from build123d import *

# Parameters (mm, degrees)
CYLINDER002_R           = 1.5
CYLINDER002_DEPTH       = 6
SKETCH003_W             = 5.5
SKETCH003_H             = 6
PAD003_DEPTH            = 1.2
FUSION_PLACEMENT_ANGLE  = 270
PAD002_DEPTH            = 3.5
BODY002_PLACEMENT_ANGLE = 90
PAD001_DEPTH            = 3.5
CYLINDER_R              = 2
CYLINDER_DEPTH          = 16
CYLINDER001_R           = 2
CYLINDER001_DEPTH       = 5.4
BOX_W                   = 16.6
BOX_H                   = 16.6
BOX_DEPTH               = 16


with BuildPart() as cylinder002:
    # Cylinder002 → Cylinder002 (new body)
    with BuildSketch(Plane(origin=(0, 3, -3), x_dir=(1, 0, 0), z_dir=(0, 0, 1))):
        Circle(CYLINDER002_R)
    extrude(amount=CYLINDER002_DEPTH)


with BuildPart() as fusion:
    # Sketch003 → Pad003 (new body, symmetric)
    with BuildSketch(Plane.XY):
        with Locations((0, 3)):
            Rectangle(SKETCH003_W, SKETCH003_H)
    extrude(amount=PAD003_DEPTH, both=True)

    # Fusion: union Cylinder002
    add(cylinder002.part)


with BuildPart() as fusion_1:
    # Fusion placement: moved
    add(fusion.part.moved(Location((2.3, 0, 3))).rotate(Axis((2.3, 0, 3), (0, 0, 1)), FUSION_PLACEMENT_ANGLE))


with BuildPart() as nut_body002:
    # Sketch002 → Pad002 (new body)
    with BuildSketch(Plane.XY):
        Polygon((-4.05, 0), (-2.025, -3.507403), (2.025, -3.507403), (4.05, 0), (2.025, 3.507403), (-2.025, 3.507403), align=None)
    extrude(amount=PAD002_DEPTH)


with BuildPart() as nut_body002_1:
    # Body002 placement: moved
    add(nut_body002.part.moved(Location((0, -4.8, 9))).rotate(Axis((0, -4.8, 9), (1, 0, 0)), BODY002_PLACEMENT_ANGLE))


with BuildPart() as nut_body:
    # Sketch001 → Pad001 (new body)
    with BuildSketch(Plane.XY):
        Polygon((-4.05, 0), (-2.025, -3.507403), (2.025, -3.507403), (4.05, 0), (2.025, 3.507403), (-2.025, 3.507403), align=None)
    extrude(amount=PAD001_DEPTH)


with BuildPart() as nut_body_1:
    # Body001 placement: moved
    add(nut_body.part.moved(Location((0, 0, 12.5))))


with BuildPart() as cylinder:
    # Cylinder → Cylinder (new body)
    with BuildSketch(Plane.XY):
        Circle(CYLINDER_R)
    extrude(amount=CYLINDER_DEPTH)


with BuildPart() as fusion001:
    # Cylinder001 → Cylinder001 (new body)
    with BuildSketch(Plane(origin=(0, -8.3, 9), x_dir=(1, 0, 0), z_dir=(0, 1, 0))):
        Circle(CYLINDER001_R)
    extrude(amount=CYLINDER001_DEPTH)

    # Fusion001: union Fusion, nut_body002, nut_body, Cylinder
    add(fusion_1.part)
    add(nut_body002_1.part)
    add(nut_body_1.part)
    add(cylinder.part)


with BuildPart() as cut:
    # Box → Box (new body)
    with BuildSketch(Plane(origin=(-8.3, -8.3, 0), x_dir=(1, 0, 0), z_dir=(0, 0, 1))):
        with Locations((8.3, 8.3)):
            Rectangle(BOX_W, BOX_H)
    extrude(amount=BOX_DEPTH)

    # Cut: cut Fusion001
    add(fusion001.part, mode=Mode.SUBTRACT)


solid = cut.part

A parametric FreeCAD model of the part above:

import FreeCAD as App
import Part
import Sketcher
from FreeCAD import Vector
Q = App.Units.Quantity

doc = App.newDocument("Part")
body = doc.addObject("PartDesign::Body", "Body")

# Sketch on XY plane
sketch1 = body.newObject("Sketcher::SketchObject", "Sketch")
sketch1.AttachmentSupport = (doc.getObject("XY_Plane"), [""])
sketch1.MapMode = "FlatFace"
sketch1.AttachmentOffset = App.Placement(Vector(0, 0, -3), App.Rotation())
sketch1.addGeometry(Part.Circle(Vector(0, 3, 0), Vector(0, 0, 1), 1.5), False)
sketch1.addConstraint([
    Sketcher.Constraint("PointOnObject", 0, 3, -2),
    Sketcher.Constraint("Diameter", 0, 3.0),
    Sketcher.Constraint("DistanceY", -1, 1, 0, 3, 3.0),
])
pad1 = body.newObject("PartDesign::Pad", "Pad")
pad1.Profile = sketch1
pad1.Length = 6
body2 = doc.addObject("PartDesign::Body", "Body001")

# Sketch on XY plane
sketch2 = body2.newObject("Sketcher::SketchObject", "Sketch001")
sketch2.AttachmentSupport = (doc.getObject("XY_Plane001"), [""])
sketch2.MapMode = "FlatFace"
sketch2.addGeometry([
    Part.LineSegment(Vector(-3, 6, 0), Vector(-3, 0, 0)),
    Part.LineSegment(Vector(-3, 0, 0), Vector(3, 0, 0)),
    Part.LineSegment(Vector(3, 0, 0), Vector(3, 6, 0)),
    Part.LineSegment(Vector(3, 6, 0), Vector(-3, 6, 0)),
], False)
sketch2.addConstraint([
    Sketcher.Constraint("Coincident", 0, 2, 1, 1),
    Sketcher.Constraint("Coincident", 1, 2, 2, 1),
    Sketcher.Constraint("Coincident", 2, 2, 3, 1),
    Sketcher.Constraint("Coincident", 3, 2, 0, 1),
    Sketcher.Constraint("Vertical", 0),
    Sketcher.Constraint("Horizontal", 1),
    Sketcher.Constraint("Vertical", 2),
    Sketcher.Constraint("Horizontal", 3),
    Sketcher.Constraint("Symmetric", 0, 2, 1, 2, -1, 1),
    Sketcher.Constraint("DistanceY", 0, 2, 0, 1, 6.0),
    Sketcher.Constraint("DistanceX", 1, 1, 1, 2, 5.5),
])
pad2 = body2.newObject("PartDesign::Pad", "Pad001")
pad2.Profile = sketch2
pad2.Length = 2.4
pad2.Midplane = True
doc.recompute()

boolean = body2.newObject("PartDesign::Boolean", "Boolean")
boolean.Type = "Fuse"
boolean.addObjects([body])
body3 = doc.addObject("PartDesign::Body", "Body002")
doc.recompute()

body2.Placement = App.Placement(Vector(2.3, 0, 3), App.Rotation(Vector(0, 0, 1), 270))
boolean2 = body3.newObject("PartDesign::Boolean", "Boolean001")
boolean2.Type = "Fuse"
boolean2.addObjects([body2])
body4 = doc.addObject("PartDesign::Body", "Body003")

# Sketch on XY plane
sketch3 = body4.newObject("Sketcher::SketchObject", "Sketch002")
sketch3.AttachmentSupport = (doc.getObject("XY_Plane003"), [""])
sketch3.MapMode = "FlatFace"
sketch3.addGeometry([
    Part.LineSegment(Vector(-4, 0, 0), Vector(-2, -3.5, 0)),  # 0
    Part.LineSegment(Vector(-2, -3.5, 0), Vector(2, -3.5, 0)),  # 1
    Part.LineSegment(Vector(2, -3.5, 0), Vector(4, 0, 0)),  # 2
    Part.LineSegment(Vector(4, 0, 0), Vector(2, 3.5, 0)),  # 3
    Part.LineSegment(Vector(2, 3.5, 0), Vector(-2, 3.5, 0)),  # 4
    Part.LineSegment(Vector(-2, 3.5, 0), Vector(-4, 0, 0)),  # 5
], False)
sketch3.addConstraint([
    Sketcher.Constraint("Coincident", 0, 2, 1, 1),
    Sketcher.Constraint("Coincident", 1, 2, 2, 1),
    Sketcher.Constraint("Coincident", 2, 2, 3, 1),
    Sketcher.Constraint("Coincident", 3, 2, 4, 1),
    Sketcher.Constraint("Coincident", 4, 2, 5, 1),
    Sketcher.Constraint("Coincident", 5, 2, 0, 1),
    Sketcher.Constraint("Horizontal", 1),
    Sketcher.Constraint("Horizontal", 4),
    Sketcher.Constraint("Symmetric", 0, 2, 3, 2, -1, 1),
    Sketcher.Constraint("Symmetric", 2, 2, 5, 2, -1, 1),
    Sketcher.Constraint("PointOnObject", 2, 2, -1),
    Sketcher.Constraint("Parallel", 2, 5),
    Sketcher.Constraint("Vertical", 1, 2, 3, 2),
    Sketcher.Constraint("Angle", 0, Q("-60.000001 deg")),
    Sketcher.Constraint("DistanceX", 1, 1, 1, 2, 4.05),
    Sketcher.Constraint("DistanceX", 5, 2, 2, 2, 8.1),
])
pad3 = body4.newObject("PartDesign::Pad", "Pad002")
pad3.Profile = sketch3
pad3.Length = 3.5
body5 = doc.addObject("PartDesign::Body", "Body004")
doc.recompute()

body4.Placement = App.Placement(Vector(0, -4.8, 9), App.Rotation(Vector(1, 0, 0), 90))
boolean3 = body5.newObject("PartDesign::Boolean", "Boolean002")
boolean3.Type = "Fuse"
boolean3.addObjects([body4])
body6 = doc.addObject("PartDesign::Body", "Body005")

# Sketch on XY plane
sketch4 = body6.newObject("Sketcher::SketchObject", "Sketch003")
sketch4.AttachmentSupport = (doc.getObject("XY_Plane005"), [""])
sketch4.MapMode = "FlatFace"
sketch4.addGeometry([
    Part.LineSegment(Vector(-4, 0, 0), Vector(-2, -3.5, 0)),  # 0
    Part.LineSegment(Vector(-2, -3.5, 0), Vector(2, -3.5, 0)),  # 1
    Part.LineSegment(Vector(2, -3.5, 0), Vector(4, 0, 0)),  # 2
    Part.LineSegment(Vector(4, 0, 0), Vector(2, 3.5, 0)),  # 3
    Part.LineSegment(Vector(2, 3.5, 0), Vector(-2, 3.5, 0)),  # 4
    Part.LineSegment(Vector(-2, 3.5, 0), Vector(-4, 0, 0)),  # 5
], False)
sketch4.addConstraint([
    Sketcher.Constraint("Coincident", 0, 2, 1, 1),
    Sketcher.Constraint("Coincident", 1, 2, 2, 1),
    Sketcher.Constraint("Coincident", 2, 2, 3, 1),
    Sketcher.Constraint("Coincident", 3, 2, 4, 1),
    Sketcher.Constraint("Coincident", 4, 2, 5, 1),
    Sketcher.Constraint("Coincident", 5, 2, 0, 1),
    Sketcher.Constraint("Horizontal", 1),
    Sketcher.Constraint("Horizontal", 4),
    Sketcher.Constraint("Symmetric", 0, 2, 3, 2, -1, 1),
    Sketcher.Constraint("Symmetric", 2, 2, 5, 2, -1, 1),
    Sketcher.Constraint("PointOnObject", 2, 2, -1),
    Sketcher.Constraint("Parallel", 2, 5),
    Sketcher.Constraint("Vertical", 1, 2, 3, 2),
    Sketcher.Constraint("Angle", 0, Q("-60.000001 deg")),
    Sketcher.Constraint("DistanceX", 1, 1, 1, 2, 4.05),
    Sketcher.Constraint("DistanceX", 5, 2, 2, 2, 8.1),
])
pad4 = body6.newObject("PartDesign::Pad", "Pad003")
pad4.Profile = sketch4
pad4.Length = 3.5
body7 = doc.addObject("PartDesign::Body", "Body006")
doc.recompute()

body6.Placement = App.Placement(Vector(0, 0, 12.5), App.Rotation(Vector(0, 0, 1), 0))
boolean4 = body7.newObject("PartDesign::Boolean", "Boolean003")
boolean4.Type = "Fuse"
boolean4.addObjects([body6])
body8 = doc.addObject("PartDesign::Body", "Body007")

# Sketch on XY plane
sketch5 = body8.newObject("Sketcher::SketchObject", "Sketch004")
sketch5.AttachmentSupport = (doc.getObject("XY_Plane007"), [""])
sketch5.MapMode = "FlatFace"
sketch5.addGeometry(Part.Circle(Vector(0, 0, 0), Vector(0, 0, 1), 2), False)
sketch5.addConstraint([
    Sketcher.Constraint("Coincident", 0, 3, -1, 1),
    Sketcher.Constraint("Diameter", 0, 4.0),
])
pad5 = body8.newObject("PartDesign::Pad", "Pad004")
pad5.Profile = sketch5
pad5.Length = 16
body9 = doc.addObject("PartDesign::Body", "Body008")
body9.AllowCompound = True

# Sketch on XZ plane
sketch6 = body9.newObject("Sketcher::SketchObject", "Sketch005")
sketch6.AttachmentSupport = (doc.getObject("XZ_Plane008"), [""])
sketch6.MapMode = "FlatFace"
sketch6.AttachmentOffset = App.Placement(Vector(0, 0, 8.3), App.Rotation())
sketch6.addGeometry(Part.Circle(Vector(0, 9, 0), Vector(0, 0, 1), 2), False)
sketch6.addConstraint([
    Sketcher.Constraint("PointOnObject", 0, 3, -2),
    Sketcher.Constraint("Diameter", 0, 4.0),
    Sketcher.Constraint("DistanceY", -1, 1, 0, 3, 9.0),
])
pad6 = body9.newObject("PartDesign::Pad", "Pad005")
pad6.Profile = sketch6
pad6.Length = 5.4
pad6.Reversed = True
doc.recompute()

boolean5 = body9.newObject("PartDesign::Boolean", "Boolean004")
boolean5.Type = "Fuse"
boolean5.addObjects([body3])
doc.recompute()

boolean6 = body9.newObject("PartDesign::Boolean", "Boolean005")
boolean6.Type = "Fuse"
boolean6.addObjects([body5])
doc.recompute()

boolean7 = body9.newObject("PartDesign::Boolean", "Boolean006")
boolean7.Type = "Fuse"
boolean7.addObjects([body7])
doc.recompute()

boolean8 = body9.newObject("PartDesign::Boolean", "Boolean007")
boolean8.Type = "Fuse"
boolean8.addObjects([body8])
body10 = doc.addObject("PartDesign::Body", "Body009")

# Sketch on XY plane
sketch7 = body10.newObject("Sketcher::SketchObject", "Sketch006")
sketch7.AttachmentSupport = (doc.getObject("XY_Plane009"), [""])
sketch7.MapMode = "FlatFace"
sketch7.addGeometry([
    Part.LineSegment(Vector(-8, 8, 0), Vector(-8, -8, 0)),
    Part.LineSegment(Vector(-8, -8, 0), Vector(8, -8, 0)),
    Part.LineSegment(Vector(8, -8, 0), Vector(8, 8, 0)),
    Part.LineSegment(Vector(8, 8, 0), Vector(-8, 8, 0)),
], False)
sketch7.addConstraint([
    Sketcher.Constraint("Coincident", 0, 2, 1, 1),
    Sketcher.Constraint("Coincident", 1, 2, 2, 1),
    Sketcher.Constraint("Coincident", 2, 2, 3, 1),
    Sketcher.Constraint("Coincident", 3, 2, 0, 1),
    Sketcher.Constraint("Vertical", 0),
    Sketcher.Constraint("Horizontal", 1),
    Sketcher.Constraint("Vertical", 2),
    Sketcher.Constraint("Horizontal", 3),
    Sketcher.Constraint("Symmetric", 0, 2, 2, 2, -1, 1),
    Sketcher.Constraint("Equal", 3, 0),
    Sketcher.Constraint("DistanceX", 1, 1, 1, 2, 16.6),
])
pad7 = body10.newObject("PartDesign::Pad", "Pad006")
pad7.Profile = sketch7
pad7.Length = 16
doc.recompute()

boolean9 = body10.newObject("PartDesign::Boolean", "Boolean008")
boolean9.Type = "Cut"
boolean9.addObjects([body9])

doc.recompute()
